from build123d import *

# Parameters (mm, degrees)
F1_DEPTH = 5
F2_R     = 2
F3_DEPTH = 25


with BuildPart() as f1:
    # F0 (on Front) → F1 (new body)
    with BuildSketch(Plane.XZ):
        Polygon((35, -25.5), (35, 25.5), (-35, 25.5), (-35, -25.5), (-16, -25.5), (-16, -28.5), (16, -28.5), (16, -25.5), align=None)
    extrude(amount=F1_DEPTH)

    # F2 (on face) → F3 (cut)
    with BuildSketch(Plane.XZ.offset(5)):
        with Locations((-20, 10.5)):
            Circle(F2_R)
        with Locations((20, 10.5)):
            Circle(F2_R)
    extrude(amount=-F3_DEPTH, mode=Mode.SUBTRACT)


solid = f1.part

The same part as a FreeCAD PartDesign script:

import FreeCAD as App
import Part
import Sketcher
from FreeCAD import Vector

doc = App.newDocument("Part")
body = doc.addObject("PartDesign::Body", "Body")

# Sketch on XZ plane
sketch1 = body.newObject("Sketcher::SketchObject", "Sketch")
sketch1.AttachmentSupport = (doc.getObject("XZ_Plane"), [""])
sketch1.MapMode = "FlatFace"
sketch1.addGeometry([
    Part.LineSegment(Vector(35, -25.5, 0), Vector(35, 25.5, 0)),  # 0
    Part.LineSegment(Vector(35, 25.5, 0), Vector(-35, 25.5, 0)),  # 1
    Part.LineSegment(Vector(-35, 25.5, 0), Vector(-35, -25.5, 0)),  # 2
    Part.LineSegment(Vector(-35, -25.5, 0), Vector(-16, -25.5, 0)),  # 3
    Part.LineSegment(Vector(-16, -25.5, 0), Vector(-16, -28.5, 0)),  # 4
    Part.LineSegment(Vector(-16, -28.5, 0), Vector(16, -28.5, 0)),  # 5
    Part.LineSegment(Vector(16, -28.5, 0), Vector(16, -25.5, 0)),  # 6
    Part.LineSegment(Vector(16, -25.5, 0), Vector(35, -25.5, 0)),  # 7
], False)
sketch1.addConstraint([
    Sketcher.Constraint("Coincident", 0, 2, 1, 1),
    Sketcher.Constraint("Coincident", 1, 2, 2, 1),
    Sketcher.Constraint("Coincident", 2, 2, 3, 1),
    Sketcher.Constraint("Coincident", 3, 2, 4, 1),
    Sketcher.Constraint("Coincident", 4, 2, 5, 1),
    Sketcher.Constraint("Coincident", 5, 2, 6, 1),
    Sketcher.Constraint("Coincident", 6, 2, 7, 1),
    Sketcher.Constraint("Coincident", 7, 2, 0, 1),
    Sketcher.Constraint("Vertical", 0),
    Sketcher.Constraint("Horizontal", 1),
    Sketcher.Constraint("Vertical", 2),
    Sketcher.Constraint("Horizontal", 3),
    Sketcher.Constraint("Vertical", 4),
    Sketcher.Constraint("Horizontal", 5),
    Sketcher.Constraint("Vertical", 6),
    Sketcher.Constraint("Horizontal", 7),
    Sketcher.Constraint("Symmetric", 0, 2, 2, 2, -1, 1),
    Sketcher.Constraint("Symmetric", 3, 2, 6, 2, -2),
    Sketcher.Constraint("DistanceX", 1, 2, 1, 1, 70.0),
    Sketcher.Constraint("DistanceX", 3, 1, 3, 2, 19.0),
    Sketcher.Constraint("DistanceY", 0, 1, 0, 2, 51.0),
    Sketcher.Constraint("DistanceY", 4, 2, 4, 1, 3.0),
])
pad1 = body.newObject("PartDesign::Pad", "Pad")
pad1.Profile = sketch1
pad1.Length = 5

# Sketch on XZ plane
sketch2 = body.newObject("Sketcher::SketchObject", "Sketch001")
sketch2.AttachmentSupport = (doc.getObject("XZ_Plane"), [""])
sketch2.MapMode = "FlatFace"
sketch2.AttachmentOffset = App.Placement(Vector(0, 0, 5), App.Rotation())
sketch2.addGeometry([
    Part.Circle(Vector(-20, 10.5, 0), Vector(0, 0, 1), 2),
    Part.Circle(Vector(20, 10.5, 0), Vector(0, 0, 1), 2),
], False)
sketch2.addConstraint([
    Sketcher.Constraint("Equal", 0, 1),
    Sketcher.Constraint("Symmetric", 0, 3, 1, 3, -2),
    Sketcher.Constraint("Diameter", 0, 4.0),
    Sketcher.Constraint("DistanceX", 0, 3, -1, 1, 20.0),
    Sketcher.Constraint("DistanceY", -1, 1, 0, 3, 10.5),
])
pocket1 = body.newObject("PartDesign::Pocket", "Pocket")
pocket1.Profile = sketch2
pocket1.Length = 25

doc.recompute()
